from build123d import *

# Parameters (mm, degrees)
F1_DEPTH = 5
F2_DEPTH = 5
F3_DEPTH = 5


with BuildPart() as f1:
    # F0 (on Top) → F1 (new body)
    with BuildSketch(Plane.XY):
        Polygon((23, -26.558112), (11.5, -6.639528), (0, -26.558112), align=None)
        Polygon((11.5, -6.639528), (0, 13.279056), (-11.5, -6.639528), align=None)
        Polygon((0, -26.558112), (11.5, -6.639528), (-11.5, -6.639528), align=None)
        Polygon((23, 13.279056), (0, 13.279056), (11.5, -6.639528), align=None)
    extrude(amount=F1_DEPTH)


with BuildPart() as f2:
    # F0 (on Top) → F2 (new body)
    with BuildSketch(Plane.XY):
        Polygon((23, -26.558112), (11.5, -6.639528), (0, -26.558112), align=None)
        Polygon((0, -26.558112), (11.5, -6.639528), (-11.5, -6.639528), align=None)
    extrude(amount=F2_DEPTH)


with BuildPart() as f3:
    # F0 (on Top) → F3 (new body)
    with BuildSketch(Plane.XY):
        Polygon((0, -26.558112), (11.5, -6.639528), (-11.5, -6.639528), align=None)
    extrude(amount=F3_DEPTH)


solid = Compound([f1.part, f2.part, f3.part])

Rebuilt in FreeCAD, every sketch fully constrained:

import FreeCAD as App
import Part
import Sketcher
from FreeCAD import Vector
Q = App.Units.Quantity

doc = App.newDocument("Part")
params = doc.addObject("Spreadsheet::Sheet", "Params")
for row, (alias, value) in enumerate([
    ("sketch1_width", "23 mm"),
    ("pad1_length", "5 mm"),
    ("sketch2_width", "23 mm"),
    ("sketch2_length", "23 mm"),
    ("pad2_length", "5 mm"),
    ("sketch3_width", "23 mm"),
    ("pad3_length", "5 mm"),
], start=1):
    params.set(f"A{row}", alias)
    params.set(f"B{row}", "=" + value)
    params.setAlias(f"B{row}", alias)

body = doc.addObject("PartDesign::Body", "Body")

# Sketch on XY plane
sketch1 = body.newObject("Sketcher::SketchObject", "Sketch")
sketch1.AttachmentSupport = (doc.getObject("XY_Plane"), [""])
sketch1.MapMode = "FlatFace"
sketch1.addGeometry([
    Part.LineSegment(Vector(23, -26.558112, 0), Vector(11.5, -6.639528, 0)),  # 0
    Part.LineSegment(Vector(11.5, -6.639528, 0), Vector(23, 13.279056, 0)),  # 1
    Part.LineSegment(Vector(23, 13.279056, 0), Vector(0, 13.279056, 0)),  # 2
    Part.LineSegment(Vector(0, 13.279056, 0), Vector(-11.5, -6.639528, 0)),  # 3
    Part.LineSegment(Vector(-11.5, -6.639528, 0), Vector(0, -26.558112, 0)),  # 4
    Part.LineSegment(Vector(0, -26.558112, 0), Vector(23, -26.558112, 0)),  # 5
], False)
sketch1.addConstraint([
    Sketcher.Constraint("Coincident", 0, 2, 1, 1),
    Sketcher.Constraint("Coincident", 1, 2, 2, 1),
    Sketcher.Constraint("Coincident", 2, 2, 3, 1),
    Sketcher.Constraint("Coincident", 3, 2, 4, 1),
    Sketcher.Constraint("Coincident", 4, 2, 5, 1),
    Sketcher.Constraint("Coincident", 5, 2, 0, 1),
    Sketcher.Constraint("Horizontal", 2),
    Sketcher.Constraint("Horizontal", 5),
    Sketcher.Constraint("Symmetric", 0, 2, 3, 2, -2),
    Sketcher.Constraint("PointOnObject", 2, 2, -2),
    Sketcher.Constraint("PointOnObject", 4, 2, -2),
    Sketcher.Constraint("Parallel", 1, 3),
    Sketcher.Constraint("Parallel", 0, 4),
    Sketcher.Constraint("Equal", 0, 1),
    Sketcher.Constraint("DistanceX", 2, 2, 2, 1, 23.0),
    Sketcher.Constraint("Angle", 0, Q("120 deg")),
    Sketcher.Constraint("DistanceY", 0, 2, -1, 1, 6.639528),
])
sketch1.setExpression("Constraints[14]", "Params.sketch1_width")
pad1 = body.newObject("PartDesign::Pad", "Pad")
pad1.Profile = sketch1
pad1.setExpression("Length", "Params.pad1_length")
body2 = doc.addObject("PartDesign::Body", "Body001")

# Sketch on XY plane
sketch2 = body2.newObject("Sketcher::SketchObject", "Sketch001")
sketch2.AttachmentSupport = (doc.getObject("XY_Plane001"), [""])
sketch2.MapMode = "FlatFace"
sketch2.addGeometry([
    Part.LineSegment(Vector(23, -26.558112, 0), Vector(11.5, -6.639528, 0)),
    Part.LineSegment(Vector(11.5, -6.639528, 0), Vector(-11.5, -6.639528, 0)),
    Part.LineSegment(Vector(-11.5, -6.639528, 0), Vector(0, -26.558112, 0)),
    Part.LineSegment(Vector(0, -26.558112, 0), Vector(23, -26.558112, 0)),
], False)
sketch2.addConstraint([
    Sketcher.Constraint("Coincident", 0, 2, 1, 1),
    Sketcher.Constraint("Coincident", 1, 2, 2, 1),
    Sketcher.Constraint("Coincident", 2, 2, 3, 1),
    Sketcher.Constraint("Coincident", 3, 2, 0, 1),
    Sketcher.Constraint("Horizontal", 1),
    Sketcher.Constraint("Horizontal", 3),
    Sketcher.Constraint("PointOnObject", 2, 2, -2),
    Sketcher.Constraint("Parallel", 0, 2),
    Sketcher.Constraint("DistanceX", 1, 2, 1, 1, 23.0),
    Sketcher.Constraint("Angle", 0, Q("120 deg")),
    Sketcher.Constraint("Distance", 0, 23.0),
    Sketcher.Constraint("DistanceY", 0, 2, -1, 1, 6.639528),
])
sketch2.setExpression("Constraints[8]", "Params.sketch2_width")
sketch2.setExpression("Constraints[10]", "Params.sketch2_length")
pad2 = body2.newObject("PartDesign::Pad", "Pad001")
pad2.Profile = sketch2
pad2.setExpression("Length", "Params.pad2_length")
body3 = doc.addObject("PartDesign::Body", "Body002")

# Sketch on XY plane
sketch3 = body3.newObject("Sketcher::SketchObject", "Sketch002")
sketch3.AttachmentSupport = (doc.getObject("XY_Plane002"), [""])
sketch3.MapMode = "FlatFace"
sketch3.addGeometry([
    Part.LineSegment(Vector(0, -26.558112, 0), Vector(11.5, -6.639528, 0)),
    Part.LineSegment(Vector(11.5, -6.639528, 0), Vector(-11.5, -6.639528, 0)),
    Part.LineSegment(Vector(-11.5, -6.639528, 0), Vector(0, -26.558112, 0)),
], False)
sketch3.addConstraint([
    Sketcher.Constraint("Coincident", 0, 2, 1, 1),
    Sketcher.Constraint("Coincident", 1, 2, 2, 1),
    Sketcher.Constraint("Coincident", 2, 2, 0, 1),
    Sketcher.Constraint("Horizontal", 1),
    Sketcher.Constraint("PointOnObject", 2, 2, -2),
    Sketcher.Constraint("Equal", 0, 2),
    Sketcher.Constraint("DistanceX", 1, 2, 1, 1, 23.0),
    Sketcher.Constraint("Angle", 0, Q("60 deg")),
    Sketcher.Constraint("DistanceY", 0, 2, -1, 1, 6.639528),
])
sketch3.setExpression("Constraints[6]", "Params.sketch3_width")
pad3 = body3.newObject("PartDesign::Pad", "Pad002")
pad3.Profile = sketch3
pad3.setExpression("Length", "Params.pad3_length")

doc.recompute()
